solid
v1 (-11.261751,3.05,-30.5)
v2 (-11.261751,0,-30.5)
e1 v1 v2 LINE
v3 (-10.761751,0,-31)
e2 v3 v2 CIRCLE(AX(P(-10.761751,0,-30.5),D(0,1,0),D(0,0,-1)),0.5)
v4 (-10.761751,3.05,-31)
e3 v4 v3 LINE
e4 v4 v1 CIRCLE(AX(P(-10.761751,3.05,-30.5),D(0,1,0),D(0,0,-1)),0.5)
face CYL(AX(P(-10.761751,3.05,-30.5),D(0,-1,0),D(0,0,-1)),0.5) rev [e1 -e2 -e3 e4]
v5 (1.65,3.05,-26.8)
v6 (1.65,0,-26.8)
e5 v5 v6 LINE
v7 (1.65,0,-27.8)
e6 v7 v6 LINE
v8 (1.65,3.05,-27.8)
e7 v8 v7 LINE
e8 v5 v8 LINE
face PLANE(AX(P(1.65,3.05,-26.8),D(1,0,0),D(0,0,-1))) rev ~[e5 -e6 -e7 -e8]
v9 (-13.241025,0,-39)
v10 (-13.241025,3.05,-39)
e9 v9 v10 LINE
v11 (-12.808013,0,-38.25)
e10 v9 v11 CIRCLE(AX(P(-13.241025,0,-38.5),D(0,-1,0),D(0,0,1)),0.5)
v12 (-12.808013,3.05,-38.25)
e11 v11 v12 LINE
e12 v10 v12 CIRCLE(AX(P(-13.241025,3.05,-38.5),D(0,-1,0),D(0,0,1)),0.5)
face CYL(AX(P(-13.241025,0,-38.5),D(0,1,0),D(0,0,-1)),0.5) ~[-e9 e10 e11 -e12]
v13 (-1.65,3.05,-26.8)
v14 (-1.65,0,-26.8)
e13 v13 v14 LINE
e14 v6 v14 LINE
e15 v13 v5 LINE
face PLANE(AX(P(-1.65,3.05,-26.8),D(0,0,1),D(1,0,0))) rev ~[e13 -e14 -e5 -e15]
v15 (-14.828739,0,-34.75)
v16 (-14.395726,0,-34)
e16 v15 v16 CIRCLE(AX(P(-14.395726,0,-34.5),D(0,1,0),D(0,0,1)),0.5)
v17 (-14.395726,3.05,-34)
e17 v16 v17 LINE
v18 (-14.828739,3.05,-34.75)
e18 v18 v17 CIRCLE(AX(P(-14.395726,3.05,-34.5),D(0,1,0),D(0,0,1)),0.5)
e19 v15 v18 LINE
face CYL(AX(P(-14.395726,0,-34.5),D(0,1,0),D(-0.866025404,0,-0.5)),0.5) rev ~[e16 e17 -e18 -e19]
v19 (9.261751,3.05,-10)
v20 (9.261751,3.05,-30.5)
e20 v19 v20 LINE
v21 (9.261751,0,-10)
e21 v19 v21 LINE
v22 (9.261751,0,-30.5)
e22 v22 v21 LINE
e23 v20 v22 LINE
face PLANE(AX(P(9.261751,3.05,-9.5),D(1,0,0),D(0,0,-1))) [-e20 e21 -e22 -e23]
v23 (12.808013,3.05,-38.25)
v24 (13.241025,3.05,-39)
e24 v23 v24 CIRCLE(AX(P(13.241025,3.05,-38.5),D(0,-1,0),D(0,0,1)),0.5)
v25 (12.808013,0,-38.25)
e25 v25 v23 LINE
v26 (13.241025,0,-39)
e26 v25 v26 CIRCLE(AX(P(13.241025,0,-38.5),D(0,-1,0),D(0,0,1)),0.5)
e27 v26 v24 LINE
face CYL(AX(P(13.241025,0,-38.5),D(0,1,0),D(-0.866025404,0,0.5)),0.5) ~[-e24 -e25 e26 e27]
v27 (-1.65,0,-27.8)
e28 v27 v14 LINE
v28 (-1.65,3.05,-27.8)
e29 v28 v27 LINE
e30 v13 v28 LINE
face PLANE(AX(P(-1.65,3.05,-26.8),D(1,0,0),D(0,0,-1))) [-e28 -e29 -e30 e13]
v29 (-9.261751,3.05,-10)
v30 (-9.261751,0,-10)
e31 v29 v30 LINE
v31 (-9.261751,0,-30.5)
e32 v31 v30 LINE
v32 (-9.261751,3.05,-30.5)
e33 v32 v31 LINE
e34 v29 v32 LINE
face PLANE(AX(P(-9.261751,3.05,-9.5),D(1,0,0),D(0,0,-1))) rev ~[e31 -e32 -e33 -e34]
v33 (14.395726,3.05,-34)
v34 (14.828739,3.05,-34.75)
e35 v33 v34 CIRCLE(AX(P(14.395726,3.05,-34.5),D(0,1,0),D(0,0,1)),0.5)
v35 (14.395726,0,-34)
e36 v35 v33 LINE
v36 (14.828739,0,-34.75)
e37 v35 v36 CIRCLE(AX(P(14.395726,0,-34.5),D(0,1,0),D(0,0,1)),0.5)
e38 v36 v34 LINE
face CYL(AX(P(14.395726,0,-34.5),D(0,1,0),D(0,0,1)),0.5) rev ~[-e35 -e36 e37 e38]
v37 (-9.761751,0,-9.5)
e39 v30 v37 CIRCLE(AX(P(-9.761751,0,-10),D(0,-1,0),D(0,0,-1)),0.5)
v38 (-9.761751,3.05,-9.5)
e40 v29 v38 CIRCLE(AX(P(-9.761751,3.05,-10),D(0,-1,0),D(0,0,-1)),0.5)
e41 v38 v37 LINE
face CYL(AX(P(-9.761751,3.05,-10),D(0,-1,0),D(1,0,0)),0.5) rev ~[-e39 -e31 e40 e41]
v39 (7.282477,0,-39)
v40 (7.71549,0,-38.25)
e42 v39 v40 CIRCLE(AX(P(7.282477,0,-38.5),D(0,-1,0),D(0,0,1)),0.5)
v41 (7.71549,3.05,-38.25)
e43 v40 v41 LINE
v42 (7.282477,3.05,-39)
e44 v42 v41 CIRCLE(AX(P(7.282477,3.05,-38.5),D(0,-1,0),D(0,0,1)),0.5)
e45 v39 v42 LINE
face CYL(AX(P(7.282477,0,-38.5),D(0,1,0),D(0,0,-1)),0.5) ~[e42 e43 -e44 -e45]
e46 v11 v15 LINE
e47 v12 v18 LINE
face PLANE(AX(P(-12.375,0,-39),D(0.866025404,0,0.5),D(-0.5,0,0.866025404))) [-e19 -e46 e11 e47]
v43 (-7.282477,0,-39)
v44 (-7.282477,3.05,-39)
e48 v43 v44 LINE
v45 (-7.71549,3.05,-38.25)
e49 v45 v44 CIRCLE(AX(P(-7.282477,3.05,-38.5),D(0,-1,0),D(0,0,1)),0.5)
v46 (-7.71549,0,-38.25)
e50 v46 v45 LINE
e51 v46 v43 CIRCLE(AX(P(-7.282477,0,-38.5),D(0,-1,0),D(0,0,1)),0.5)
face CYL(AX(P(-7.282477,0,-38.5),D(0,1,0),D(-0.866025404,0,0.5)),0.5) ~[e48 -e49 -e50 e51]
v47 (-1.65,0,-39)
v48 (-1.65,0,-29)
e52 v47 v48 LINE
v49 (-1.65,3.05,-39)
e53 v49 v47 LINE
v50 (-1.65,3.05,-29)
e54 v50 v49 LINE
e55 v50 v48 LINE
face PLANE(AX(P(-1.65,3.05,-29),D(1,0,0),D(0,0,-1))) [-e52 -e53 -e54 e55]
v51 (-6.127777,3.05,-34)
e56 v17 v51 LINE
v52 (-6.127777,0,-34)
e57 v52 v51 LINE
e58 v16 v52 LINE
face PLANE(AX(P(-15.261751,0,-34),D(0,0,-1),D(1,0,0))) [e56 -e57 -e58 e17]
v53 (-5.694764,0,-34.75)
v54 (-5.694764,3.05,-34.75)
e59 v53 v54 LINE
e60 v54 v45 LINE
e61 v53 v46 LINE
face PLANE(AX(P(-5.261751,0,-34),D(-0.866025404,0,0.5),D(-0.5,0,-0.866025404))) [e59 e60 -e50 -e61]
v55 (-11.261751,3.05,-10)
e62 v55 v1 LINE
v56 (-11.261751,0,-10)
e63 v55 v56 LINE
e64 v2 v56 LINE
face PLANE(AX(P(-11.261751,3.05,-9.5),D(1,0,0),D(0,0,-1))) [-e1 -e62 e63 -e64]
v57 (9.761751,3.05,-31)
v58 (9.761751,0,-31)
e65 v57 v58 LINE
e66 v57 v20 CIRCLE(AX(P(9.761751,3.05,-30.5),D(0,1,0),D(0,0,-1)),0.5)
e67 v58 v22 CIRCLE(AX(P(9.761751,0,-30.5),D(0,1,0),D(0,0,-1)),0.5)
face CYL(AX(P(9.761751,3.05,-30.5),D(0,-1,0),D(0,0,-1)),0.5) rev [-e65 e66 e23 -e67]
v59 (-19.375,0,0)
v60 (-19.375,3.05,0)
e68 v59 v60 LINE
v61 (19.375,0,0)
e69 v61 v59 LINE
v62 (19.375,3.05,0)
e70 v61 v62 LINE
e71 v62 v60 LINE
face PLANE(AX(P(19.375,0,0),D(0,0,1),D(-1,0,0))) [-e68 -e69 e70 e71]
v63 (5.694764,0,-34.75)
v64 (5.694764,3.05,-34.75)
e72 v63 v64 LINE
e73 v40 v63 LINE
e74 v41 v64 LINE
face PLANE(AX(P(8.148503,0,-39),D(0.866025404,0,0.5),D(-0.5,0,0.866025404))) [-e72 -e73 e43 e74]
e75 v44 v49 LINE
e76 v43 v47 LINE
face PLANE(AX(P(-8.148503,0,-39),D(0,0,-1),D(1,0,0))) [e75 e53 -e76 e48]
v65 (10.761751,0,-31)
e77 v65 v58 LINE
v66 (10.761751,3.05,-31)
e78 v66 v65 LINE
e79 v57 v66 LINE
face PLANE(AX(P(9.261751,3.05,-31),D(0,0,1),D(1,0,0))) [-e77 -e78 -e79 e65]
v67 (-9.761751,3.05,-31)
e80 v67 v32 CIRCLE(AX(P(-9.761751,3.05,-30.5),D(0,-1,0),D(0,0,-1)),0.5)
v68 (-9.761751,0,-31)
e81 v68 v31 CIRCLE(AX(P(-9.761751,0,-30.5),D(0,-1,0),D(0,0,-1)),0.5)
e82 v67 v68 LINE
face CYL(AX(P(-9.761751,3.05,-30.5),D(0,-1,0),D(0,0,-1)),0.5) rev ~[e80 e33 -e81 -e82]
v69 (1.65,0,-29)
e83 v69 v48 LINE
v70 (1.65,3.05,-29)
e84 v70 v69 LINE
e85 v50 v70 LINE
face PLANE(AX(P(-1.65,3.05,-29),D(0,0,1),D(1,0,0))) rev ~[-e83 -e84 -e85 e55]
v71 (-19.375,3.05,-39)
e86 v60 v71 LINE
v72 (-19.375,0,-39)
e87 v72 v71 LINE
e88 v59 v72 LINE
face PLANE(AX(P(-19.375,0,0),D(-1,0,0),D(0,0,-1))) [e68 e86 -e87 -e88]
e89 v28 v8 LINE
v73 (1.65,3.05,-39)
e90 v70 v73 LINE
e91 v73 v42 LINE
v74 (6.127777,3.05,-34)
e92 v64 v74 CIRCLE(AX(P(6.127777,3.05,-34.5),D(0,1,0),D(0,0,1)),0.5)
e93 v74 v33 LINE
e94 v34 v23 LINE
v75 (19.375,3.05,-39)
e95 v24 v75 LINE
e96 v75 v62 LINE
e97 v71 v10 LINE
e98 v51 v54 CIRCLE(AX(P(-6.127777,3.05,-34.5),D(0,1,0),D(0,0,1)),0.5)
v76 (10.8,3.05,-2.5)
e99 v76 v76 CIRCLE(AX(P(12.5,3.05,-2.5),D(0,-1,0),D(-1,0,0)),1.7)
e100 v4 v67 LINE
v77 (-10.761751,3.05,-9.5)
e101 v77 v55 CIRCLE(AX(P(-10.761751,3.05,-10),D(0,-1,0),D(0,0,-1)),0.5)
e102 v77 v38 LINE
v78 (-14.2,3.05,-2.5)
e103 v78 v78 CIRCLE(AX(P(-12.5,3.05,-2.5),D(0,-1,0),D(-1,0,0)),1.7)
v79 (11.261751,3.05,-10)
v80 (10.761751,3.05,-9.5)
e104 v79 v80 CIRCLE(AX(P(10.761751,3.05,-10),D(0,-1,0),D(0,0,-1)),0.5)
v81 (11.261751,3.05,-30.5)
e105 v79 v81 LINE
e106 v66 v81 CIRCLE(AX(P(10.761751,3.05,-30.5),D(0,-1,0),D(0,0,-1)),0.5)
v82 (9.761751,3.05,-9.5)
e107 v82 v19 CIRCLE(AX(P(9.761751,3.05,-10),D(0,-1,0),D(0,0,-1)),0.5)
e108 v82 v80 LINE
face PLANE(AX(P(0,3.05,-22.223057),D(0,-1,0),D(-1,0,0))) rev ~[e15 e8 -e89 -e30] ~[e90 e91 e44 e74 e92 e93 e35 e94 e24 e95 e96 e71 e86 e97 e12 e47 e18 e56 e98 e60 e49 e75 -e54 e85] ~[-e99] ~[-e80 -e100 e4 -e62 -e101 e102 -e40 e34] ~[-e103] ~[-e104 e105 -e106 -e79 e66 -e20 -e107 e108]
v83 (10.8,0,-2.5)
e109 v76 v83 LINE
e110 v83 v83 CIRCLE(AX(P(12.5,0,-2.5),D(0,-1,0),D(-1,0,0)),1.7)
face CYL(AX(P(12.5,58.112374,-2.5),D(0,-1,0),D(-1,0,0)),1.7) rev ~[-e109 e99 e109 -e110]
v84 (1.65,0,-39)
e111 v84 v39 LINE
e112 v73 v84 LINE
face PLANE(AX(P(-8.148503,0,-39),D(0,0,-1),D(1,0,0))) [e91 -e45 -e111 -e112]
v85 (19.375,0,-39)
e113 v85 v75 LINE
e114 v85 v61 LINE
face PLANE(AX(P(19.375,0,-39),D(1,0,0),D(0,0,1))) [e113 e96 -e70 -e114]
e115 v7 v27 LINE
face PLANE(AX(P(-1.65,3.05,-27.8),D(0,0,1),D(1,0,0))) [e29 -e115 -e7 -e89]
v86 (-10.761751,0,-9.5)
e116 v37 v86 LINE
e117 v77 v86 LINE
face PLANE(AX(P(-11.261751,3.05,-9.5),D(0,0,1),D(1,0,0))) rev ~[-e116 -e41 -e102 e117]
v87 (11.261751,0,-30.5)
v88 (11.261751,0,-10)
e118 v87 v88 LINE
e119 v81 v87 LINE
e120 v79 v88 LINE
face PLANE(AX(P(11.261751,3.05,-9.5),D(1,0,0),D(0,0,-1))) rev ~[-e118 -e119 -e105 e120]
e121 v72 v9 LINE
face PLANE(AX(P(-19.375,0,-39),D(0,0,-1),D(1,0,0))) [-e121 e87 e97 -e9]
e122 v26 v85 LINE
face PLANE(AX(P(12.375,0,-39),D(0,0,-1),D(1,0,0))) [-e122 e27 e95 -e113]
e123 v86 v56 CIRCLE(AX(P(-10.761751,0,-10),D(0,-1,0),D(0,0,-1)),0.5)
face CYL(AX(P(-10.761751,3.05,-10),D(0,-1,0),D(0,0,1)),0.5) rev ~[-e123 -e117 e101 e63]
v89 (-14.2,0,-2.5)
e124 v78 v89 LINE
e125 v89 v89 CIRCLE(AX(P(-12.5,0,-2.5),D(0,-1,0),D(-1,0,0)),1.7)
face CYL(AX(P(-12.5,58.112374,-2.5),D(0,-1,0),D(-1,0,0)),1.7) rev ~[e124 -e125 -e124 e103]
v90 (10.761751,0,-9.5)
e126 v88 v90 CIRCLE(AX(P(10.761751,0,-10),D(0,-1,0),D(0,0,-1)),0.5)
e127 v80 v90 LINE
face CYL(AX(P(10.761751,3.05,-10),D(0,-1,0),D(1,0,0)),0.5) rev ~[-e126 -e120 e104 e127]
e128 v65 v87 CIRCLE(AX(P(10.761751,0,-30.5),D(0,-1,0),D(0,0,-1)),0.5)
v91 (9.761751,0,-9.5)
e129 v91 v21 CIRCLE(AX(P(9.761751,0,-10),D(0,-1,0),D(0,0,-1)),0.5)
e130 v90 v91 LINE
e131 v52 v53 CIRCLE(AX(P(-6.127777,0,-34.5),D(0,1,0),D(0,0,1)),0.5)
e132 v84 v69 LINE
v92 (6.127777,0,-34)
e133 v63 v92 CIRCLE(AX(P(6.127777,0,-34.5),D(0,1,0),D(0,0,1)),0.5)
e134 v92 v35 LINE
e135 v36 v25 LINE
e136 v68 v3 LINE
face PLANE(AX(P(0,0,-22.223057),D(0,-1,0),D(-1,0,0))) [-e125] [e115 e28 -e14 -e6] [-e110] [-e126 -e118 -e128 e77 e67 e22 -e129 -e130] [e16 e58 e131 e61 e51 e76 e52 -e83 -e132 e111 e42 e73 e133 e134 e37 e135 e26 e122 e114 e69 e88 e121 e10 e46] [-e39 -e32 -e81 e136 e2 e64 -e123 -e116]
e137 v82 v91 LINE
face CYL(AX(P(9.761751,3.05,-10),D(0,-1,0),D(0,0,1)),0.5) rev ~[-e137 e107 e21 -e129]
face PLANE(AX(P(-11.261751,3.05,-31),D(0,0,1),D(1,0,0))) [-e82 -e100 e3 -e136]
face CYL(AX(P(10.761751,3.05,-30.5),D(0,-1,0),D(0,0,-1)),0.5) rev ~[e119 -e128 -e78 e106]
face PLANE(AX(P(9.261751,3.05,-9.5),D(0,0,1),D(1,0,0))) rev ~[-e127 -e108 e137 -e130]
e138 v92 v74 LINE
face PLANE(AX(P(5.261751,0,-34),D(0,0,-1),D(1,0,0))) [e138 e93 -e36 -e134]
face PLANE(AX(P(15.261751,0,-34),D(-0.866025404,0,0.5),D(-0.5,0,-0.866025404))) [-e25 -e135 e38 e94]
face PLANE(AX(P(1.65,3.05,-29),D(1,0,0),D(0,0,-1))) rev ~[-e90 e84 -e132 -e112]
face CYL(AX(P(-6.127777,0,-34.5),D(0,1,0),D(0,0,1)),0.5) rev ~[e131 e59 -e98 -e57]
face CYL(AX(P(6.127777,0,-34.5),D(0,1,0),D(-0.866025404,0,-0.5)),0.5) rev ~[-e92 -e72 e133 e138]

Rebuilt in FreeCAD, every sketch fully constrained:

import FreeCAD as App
import Part
import Sketcher
from FreeCAD import Vector
Q = App.Units.Quantity


def edges_at(feature, points):
    """Names of the edges that pass closest to the given points."""
    edges = feature.Shape.Edges
    near = lambda p: min(range(len(edges)), key=lambda i: edges[i].distToShape(Part.Vertex(*p))[0])
    return sorted({f"Edge{near(p) + 1}" for p in points})

doc = App.newDocument("Part")
body = doc.addObject("PartDesign::Body", "Body")

# Sketch on XZ plane
sketch1 = body.newObject("Sketcher::SketchObject", "Sketch")
sketch1.AttachmentSupport = (doc.getObject("XZ_Plane"), [""])
sketch1.MapMode = "FlatFace"
sketch1.addGeometry(Part.LineSegment(Vector(-19.375, -39, 0), Vector(-19.375, 0, 0)), False)
sketch1.addGeometry(Part.LineSegment(Vector(-19.375, 0, 0), Vector(19.375, 0, 0)), False)
sketch1.addGeometry(Part.LineSegment(Vector(19.375, 0, 0), Vector(19.375, -39, 0)), False)
sketch1.addGeometry(Part.LineSegment(Vector(19.375, -39, 0), Vector(12.375, -39, 0)), False)
sketch1.addGeometry(Part.LineSegment(Vector(12.375, -39, 0), Vector(15.261751, -34, 0)), False)
sketch1.addGeometry(Part.LineSegment(Vector(15.261751, -34, 0), Vector(5.261751, -34, 0)), False)
sketch1.addGeometry(Part.LineSegment(Vector(5.261751, -34, 0), Vector(8.148503, -39, 0)), False)
sketch1.addGeometry(Part.LineSegment(Vector(8.148503, -39, 0), Vector(-8.148503, -39, 0)), False)
sketch1.addGeometry(Part.LineSegment(Vector(-8.148503, -39, 0), Vector(-5.261751, -34, 0)), False)
sketch1.addGeometry(Part.LineSegment(Vector(-5.261751, -34, 0), Vector(-15.261751, -34, 0)), False)
sketch1.addGeometry(Part.LineSegment(Vector(-15.261751, -34, 0), Vector(-12.375, -39, 0)), False)
sketch1.addGeometry(Part.LineSegment(Vector(-12.375, -39, 0), Vector(-19.375, -39, 0)), False)
sketch1.addConstraint(Sketcher.Constraint("Coincident", 0, 2, 1, 1))
sketch1.addConstraint(Sketcher.Constraint("Coincident", 1, 2, 2, 1))
sketch1.addConstraint(Sketcher.Constraint("Coincident", 2, 2, 3, 1))
sketch1.addConstraint(Sketcher.Constraint("Coincident", 3, 2, 4, 1))
sketch1.addConstraint(Sketcher.Constraint("Coincident", 4, 2, 5, 1))
sketch1.addConstraint(Sketcher.Constraint("Coincident", 5, 2, 6, 1))
sketch1.addConstraint(Sketcher.Constraint("Coincident", 6, 2, 7, 1))
sketch1.addConstraint(Sketcher.Constraint("Coincident", 7, 2, 8, 1))
sketch1.addConstraint(Sketcher.Constraint("Coincident", 8, 2, 9, 1))
sketch1.addConstraint(Sketcher.Constraint("Coincident", 9, 2, 10, 1))
sketch1.addConstraint(Sketcher.Constraint("Coincident", 10, 2, 11, 1))
sketch1.addConstraint(Sketcher.Constraint("Coincident", 11, 2, 0, 1))
sketch1.addConstraint(Sketcher.Constraint("Vertical", 0))
sketch1.addConstraint(Sketcher.Constraint("Horizontal", 1))
sketch1.addConstraint(Sketcher.Constraint("Vertical", 2))
sketch1.addConstraint(Sketcher.Constraint("Horizontal", 3))
sketch1.addConstraint(Sketcher.Constraint("Horizontal", 5))
sketch1.addConstraint(Sketcher.Constraint("Horizontal", 7))
sketch1.addConstraint(Sketcher.Constraint("Horizontal", 9))
sketch1.addConstraint(Sketcher.Constraint("Horizontal", 11))
sketch1.addConstraint(Sketcher.Constraint("Symmetric", 0, 2, 1, 2, -1, 1))
sketch1.addConstraint(Sketcher.Constraint("Symmetric", 5, 2, 8, 2, -2))
sketch1.addConstraint(Sketcher.Constraint("Symmetric", 3, 2, 10, 2, -2))
sketch1.addConstraint(Sketcher.Constraint("Parallel", 4, 8))
sketch1.addConstraint(Sketcher.Constraint("Parallel", 6, 10))
sketch1.addConstraint(Sketcher.Constraint("Horizontal", 3, 2, 6, 2))
sketch1.addConstraint(Sketcher.Constraint("Equal", 5, 9))
sketch1.addConstraint(Sketcher.Constraint("DistanceX", 3, 2, 3, 1, Q("7 mm")))
sketch1.addConstraint(Sketcher.Constraint("DistanceX", 5, 2, 5, 1, Q("10 mm")))
sketch1.addConstraint(Sketcher.Constraint("DistanceY", 0, 1, 0, 2, Q("39 mm")))
sketch1.addConstraint(Sketcher.Constraint("Angle", 4, Q("60 deg")))
sketch1.addConstraint(Sketcher.Constraint("DistanceY", 4, 2, -1, 1, Q("34 mm")))
sketch1.addConstraint(Sketcher.Constraint("DistanceX", 1, 1, 1, 2, Q("38.75 mm")))
pad1 = body.newObject("PartDesign::Pad", "Pad")
pad1.Profile = sketch1
pad1.Length = 3.05
pad1.Reversed = True
doc.recompute()

fillet = body.newObject("PartDesign::Fillet", "Fillet")
fillet.Base = (pad1, edges_at(pad1, [
    (-12.375, 1.525, -39),
    (-15.262, 1.525, -34),
    (-5.262, 1.525, -34),
    (-8.149, 1.525, -39),
    (8.149, 1.525, -39),
    (5.262, 1.525, -34),
    (15.262, 1.525, -34),
    (12.375, 1.525, -39),
]))
fillet.Radius = 0.5

# Sketch on XZ plane
sketch2 = body.newObject("Sketcher::SketchObject", "Sketch001")
sketch2.AttachmentSupport = (doc.getObject("XZ_Plane"), [""])
sketch2.MapMode = "FlatFace"
sketch2.AttachmentOffset = App.Placement(Vector(0, 0, -3.05), App.Rotation())
sketch2.addGeometry(Part.LineSegment(Vector(-1.65, -76, 0), Vector(-1.65, -29, 0)), False)
sketch2.addGeometry(Part.LineSegment(Vector(-1.65, -29, 0), Vector(1.65, -29, 0)), False)
sketch2.addGeometry(Part.LineSegment(Vector(1.65, -29, 0), Vector(1.65, -76, 0)), False)
sketch2.addGeometry(Part.LineSegment(Vector(1.65, -76, 0), Vector(-1.65, -76, 0)), False)
sketch2.addGeometry(Part.LineSegment(Vector(-1.65, -27.8, 0), Vector(-1.65, -26.8, 0)), False)
sketch2.addGeometry(Part.LineSegment(Vector(-1.65, -26.8, 0), Vector(1.65, -26.8, 0)), False)
sketch2.addGeometry(Part.LineSegment(Vector(1.65, -26.8, 0), Vector(1.65, -27.8, 0)), False)
sketch2.addGeometry(Part.LineSegment(Vector(1.65, -27.8, 0), Vector(-1.65, -27.8, 0)), False)
sketch2.addConstraint(Sketcher.Constraint("Coincident", 0, 2, 1, 1))
sketch2.addConstraint(Sketcher.Constraint("Coincident", 1, 2, 2, 1))
sketch2.addConstraint(Sketcher.Constraint("Coincident", 2, 2, 3, 1))
sketch2.addConstraint(Sketcher.Constraint("Coincident", 3, 2, 0, 1))
sketch2.addConstraint(Sketcher.Constraint("Coincident", 4, 2, 5, 1))
sketch2.addConstraint(Sketcher.Constraint("Coincident", 5, 2, 6, 1))
sketch2.addConstraint(Sketcher.Constraint("Coincident", 6, 2, 7, 1))
sketch2.addConstraint(Sketcher.Constraint("Coincident", 7, 2, 4, 1))
sketch2.addConstraint(Sketcher.Constraint("Vertical", 0))
sketch2.addConstraint(Sketcher.Constraint("Horizontal", 1))
sketch2.addConstraint(Sketcher.Constraint("Vertical", 2))
sketch2.addConstraint(Sketcher.Constraint("Horizontal", 3))
sketch2.addConstraint(Sketcher.Constraint("Vertical", 4))
sketch2.addConstraint(Sketcher.Constraint("Horizontal", 5))
sketch2.addConstraint(Sketcher.Constraint("Vertical", 6))
sketch2.addConstraint(Sketcher.Constraint("Horizontal", 7))
sketch2.addConstraint(Sketcher.Constraint("Vertical", 3, 2, 4, 2))
sketch2.addConstraint(Sketcher.Constraint("Vertical", 2, 2, 5, 2))
sketch2.addConstraint(Sketcher.Constraint("DistanceY", 0, 1, 0, 2, Q("47 mm")))
sketch2.addConstraint(Sketcher.Constraint("DistanceY", 4, 1, 4, 2, Q("1 mm")))
sketch2.addConstraint(Sketcher.Constraint("DistanceX", 1, 1, 1, 2, Q("3.3 mm")))
sketch2.addConstraint(Sketcher.Constraint("DistanceY", 0, 2, -1, 1, Q("29 mm")))
sketch2.addConstraint(Sketcher.Constraint("DistanceY", 4, 2, -1, 1, Q("26.8 mm")))
sketch2.addConstraint(Sketcher.Constraint("DistanceX", 0, 2, -1, 1, Q("1.65 mm")))
pocket1 = body.newObject("PartDesign::Pocket", "Pocket")
pocket1.Profile = sketch2
pocket1.Type = "ThroughAll"
pocket1.Reversed = True

# Sketch on XZ plane
sketch3 = body.newObject("Sketcher::SketchObject", "Sketch002")
sketch3.AttachmentSupport = (doc.getObject("XZ_Plane"), [""])
sketch3.MapMode = "FlatFace"
sketch3.AttachmentOffset = App.Placement(Vector(0, 0, -3.05), App.Rotation())
sketch3.addGeometry(Part.LineSegment(Vector(-11.261751, -31, 0), Vector(-11.261751, -9.5, 0)), False)
sketch3.addGeometry(Part.LineSegment(Vector(-11.261751, -9.5, 0), Vector(-9.261751, -9.5, 0)), False)
sketch3.addGeometry(Part.LineSegment(Vector(-9.261751, -9.5, 0), Vector(-9.261751, -31, 0)), False)
sketch3.addGeometry(Part.LineSegment(Vector(-9.261751, -31, 0), Vector(-11.261751, -31, 0)), False)
sketch3.addGeometry(Part.LineSegment(Vector(9.261751, -31, 0), Vector(9.261751, -9.5, 0)), False)
sketch3.addGeometry(Part.LineSegment(Vector(9.261751, -9.5, 0), Vector(11.261751, -9.5, 0)), False)
sketch3.addGeometry(Part.LineSegment(Vector(11.261751, -9.5, 0), Vector(11.261751, -31, 0)), False)
sketch3.addGeometry(Part.LineSegment(Vector(11.261751, -31, 0), Vector(9.261751, -31, 0)), False)
sketch3.addConstraint(Sketcher.Constraint("Coincident", 0, 2, 1, 1))
sketch3.addConstraint(Sketcher.Constraint("Coincident", 1, 2, 2, 1))
sketch3.addConstraint(Sketcher.Constraint("Coincident", 2, 2, 3, 1))
sketch3.addConstraint(Sketcher.Constraint("Coincident", 3, 2, 0, 1))
sketch3.addConstraint(Sketcher.Constraint("Coincident", 4, 2, 5, 1))
sketch3.addConstraint(Sketcher.Constraint("Coincident", 5, 2, 6, 1))
sketch3.addConstraint(Sketcher.Constraint("Coincident", 6, 2, 7, 1))
sketch3.addConstraint(Sketcher.Constraint("Coincident", 7, 2, 4, 1))
sketch3.addConstraint(Sketcher.Constraint("Vertical", 0))
sketch3.addConstraint(Sketcher.Constraint("Horizontal", 1))
sketch3.addConstraint(Sketcher.Constraint("Vertical", 2))
sketch3.addConstraint(Sketcher.Constraint("Horizontal", 3))
sketch3.addConstraint(Sketcher.Constraint("Vertical", 4))
sketch3.addConstraint(Sketcher.Constraint("Horizontal", 5))
sketch3.addConstraint(Sketcher.Constraint("Vertical", 6))
sketch3.addConstraint(Sketcher.Constraint("Horizontal", 7))
sketch3.addConstraint(Sketcher.Constraint("Symmetric", 1, 2, 4, 2, -2))
sketch3.addConstraint(Sketcher.Constraint("Symmetric", 3, 2, 6, 2, -2))
sketch3.addConstraint(Sketcher.Constraint("DistanceX", 1, 1, 1, 2, Q("2 mm")))
sketch3.addConstraint(Sketcher.Constraint("DistanceY", 0, 1, 0, 2, Q("21.5 mm")))
sketch3.addConstraint(Sketcher.Constraint("DistanceY", 2, 2, -1, 1, Q("31 mm")))
sketch3.addConstraint(Sketcher.Constraint("DistanceX", 0, 2, -1, 1, Q("11.261751 mm")))
pocket2 = body.newObject("PartDesign::Pocket", "Pocket001")
pocket2.Profile = sketch3
pocket2.Type = "ThroughAll"
pocket2.Reversed = True
doc.recompute()

fillet2 = body.newObject("PartDesign::Fillet", "Fillet001")
fillet2.Base = (pocket2, edges_at(pocket2, [
    (-11.262, 1.525, -9.5),
    (-11.262, 1.525, -31),
    (-9.262, 1.525, -31),
    (-9.262, 1.525, -9.5),
    (11.262, 1.525, -31),
    (11.262, 1.525, -9.5),
    (9.262, 1.525, -9.5),
    (9.262, 1.525, -31),
]))
fillet2.Radius = 0.5

# Sketch on XZ plane
sketch4 = body.newObject("Sketcher::SketchObject", "Sketch003")
sketch4.AttachmentSupport = (doc.getObject("XZ_Plane"), [""])
sketch4.MapMode = "FlatFace"
sketch4.AttachmentOffset = App.Placement(Vector(0, 0, -3.05), App.Rotation())
sketch4.addGeometry(Part.Circle(Vector(-12.5, -2.5, 0), Vector(0, 0, 1), 1.7), False)
sketch4.addGeometry(Part.Circle(Vector(12.5, -2.5, 0), Vector(0, 0, 1), 1.7), False)
sketch4.addConstraint(Sketcher.Constraint("Equal", 0, 1))
sketch4.addConstraint(Sketcher.Constraint("Symmetric", 0, 3, 1, 3, -2))
sketch4.addConstraint(Sketcher.Constraint("Diameter", 0, Q("3.4 mm")))
sketch4.addConstraint(Sketcher.Constraint("DistanceX", 0, 3, 1, 3, Q("25 mm")))
sketch4.addConstraint(Sketcher.Constraint("DistanceY", 0, 3, -1, 1, Q("2.5 mm")))
doc.recompute()
hole = body.newObject("PartDesign::Hole", "Hole")
hole.Profile = sketch4
hole.ThreadType = "None"
hole.Diameter = 3.4
hole.DepthType = "ThroughAll"
hole.Reversed = True

doc.recompute()
